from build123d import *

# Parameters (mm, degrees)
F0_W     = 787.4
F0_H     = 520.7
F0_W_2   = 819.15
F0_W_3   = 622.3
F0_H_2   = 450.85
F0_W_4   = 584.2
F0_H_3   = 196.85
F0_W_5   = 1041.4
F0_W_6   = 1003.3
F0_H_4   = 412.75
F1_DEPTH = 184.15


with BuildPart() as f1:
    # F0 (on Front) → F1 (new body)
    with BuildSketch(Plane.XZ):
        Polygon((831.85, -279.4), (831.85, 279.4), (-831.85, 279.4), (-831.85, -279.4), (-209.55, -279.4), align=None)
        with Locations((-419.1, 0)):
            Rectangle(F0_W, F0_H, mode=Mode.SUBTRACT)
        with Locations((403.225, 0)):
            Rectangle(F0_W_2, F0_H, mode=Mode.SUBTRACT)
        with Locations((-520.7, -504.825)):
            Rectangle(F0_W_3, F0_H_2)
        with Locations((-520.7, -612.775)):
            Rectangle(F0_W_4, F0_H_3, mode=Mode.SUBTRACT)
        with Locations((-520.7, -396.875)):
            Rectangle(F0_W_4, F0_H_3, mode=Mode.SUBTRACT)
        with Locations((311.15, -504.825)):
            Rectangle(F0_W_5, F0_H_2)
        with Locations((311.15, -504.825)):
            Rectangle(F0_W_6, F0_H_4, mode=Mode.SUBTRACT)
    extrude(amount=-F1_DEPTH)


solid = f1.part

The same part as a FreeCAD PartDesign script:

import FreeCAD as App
import Part
import Sketcher
Q = App.Units.Quantity


def add_polygon(sketch, points):
    """Adds a closed chain of lines whose ends are joined by coincident constraints."""
    first, n = sketch.GeometryCount, len(points)
    for a, b in zip(points, points[1:] + points[:1]):
        sketch.addGeometry(Part.LineSegment(App.Vector(*a, 0), App.Vector(*b, 0)), False)
    for i in range(n):
        sketch.addConstraint(Sketcher.Constraint("Coincident", first + i, 2, first + (i + 1) % n, 1))

doc = App.newDocument("Part")
body = doc.addObject("PartDesign::Body", "Body")

# Sketch on XZ plane
sketch1 = body.newObject("Sketcher::SketchObject", "Sketch")
sketch1.AttachmentSupport = (doc.getObject("XZ_Plane"), [""])
sketch1.MapMode = "FlatFace"
add_polygon(sketch1, [(831.85, 279.4), (-831.85, 279.4), (-831.85, -730.25), (831.85, -730.25)])  # lines 0-3
add_polygon(sketch1, [(-228.6, -711.2), (-812.8, -711.2), (-812.8, -514.35), (-228.6, -514.35)])  # lines 4-7
add_polygon(sketch1, [(-228.6, -495.3), (-812.8, -495.3), (-812.8, -298.45), (-228.6, -298.45)])  # lines 8-11
add_polygon(sketch1, [(812.8, -711.2), (-190.5, -711.2), (-190.5, -298.45), (812.8, -298.45)])  # lines 12-15
add_polygon(sketch1, [(-25.4, -260.35), (-812.8, -260.35), (-812.8, 260.35), (-25.4, 260.35)])  # lines 16-19
add_polygon(sketch1, [(812.8, -260.35), (-6.35, -260.35), (-6.35, 260.35), (812.8, 260.35)])  # lines 20-23
sketch1.addConstraint([
    Sketcher.Constraint("Horizontal", 0),
    Sketcher.Constraint("Vertical", 1),
    Sketcher.Constraint("Horizontal", 2),
    Sketcher.Constraint("Vertical", 3),
    Sketcher.Constraint("Horizontal", 4),
    Sketcher.Constraint("Vertical", 5),
    Sketcher.Constraint("Horizontal", 6),
    Sketcher.Constraint("Vertical", 7),
    Sketcher.Constraint("Horizontal", 8),
    Sketcher.Constraint("Vertical", 9),
    Sketcher.Constraint("Horizontal", 10),
    Sketcher.Constraint("Vertical", 11),
    Sketcher.Constraint("Horizontal", 12),
    Sketcher.Constraint("Vertical", 13),
    Sketcher.Constraint("Horizontal", 14),
    Sketcher.Constraint("Vertical", 15),
    Sketcher.Constraint("Horizontal", 16),
    Sketcher.Constraint("Vertical", 17),
    Sketcher.Constraint("Horizontal", 18),
    Sketcher.Constraint("Vertical", 19),
    Sketcher.Constraint("Horizontal", 20),
    Sketcher.Constraint("Vertical", 21),
    Sketcher.Constraint("Horizontal", 22),
    Sketcher.Constraint("Vertical", 23),
    Sketcher.Constraint("Symmetric", 16, 2, 22, 2, -1, 1),
    Sketcher.Constraint("Symmetric", 9, 2, 14, 2, -2),
    Sketcher.Constraint("Symmetric", 4, 2, 15, 2, -2),
    Sketcher.Constraint("Horizontal", 19, 2, 20, 2),
    Sketcher.Constraint("Horizontal", 18, 2, 21, 2),
    Sketcher.Constraint("Vertical", 7, 2, 10, 2),
    Sketcher.Constraint("Vertical", 9, 2, 16, 2),
    Sketcher.Constraint("Equal", 7, 9),
    Sketcher.Constraint("DistanceX", 4, 2, 4, 1, Q("23 in")),
    Sketcher.Constraint("DistanceX", 16, 2, 16, 1, Q("31 in")),
    Sketcher.Constraint("DistanceX", 0, 2, 0, 1, Q("65.5 in")),
    Sketcher.Constraint("DistanceX", 12, 2, 12, 1, Q("39.5 in")),
    Sketcher.Constraint("DistanceY", 17, 1, 17, 2, Q("20.5 in")),
    Sketcher.Constraint("DistanceY", -1, 1, 0, 2, Q("11 in")),
    Sketcher.Constraint("DistanceX", 4, 2, -1, 1, Q("32 in")),
    Sketcher.Constraint("DistanceY", 4, 2, -1, 1, Q("28 in")),
    Sketcher.Constraint("DistanceY", 1, 2, 9, 2, Q("17 in")),
    Sketcher.Constraint("DistanceY", 5, 2, 16, 2, Q("10 in")),
    Sketcher.Constraint("DistanceY", 9, 2, 17, 2, Q("22 in")),
    Sketcher.Constraint("DistanceX", 20, 2, 20, 1, Q("32.25 in")),
    Sketcher.Constraint("DistanceX", 0, 2, -1, 1, Q("32.75 in")),
])
pad1 = body.newObject("PartDesign::Pad", "Pad")
pad1.Profile = sketch1
pad1.Length = Q("7.25 in")
pad1.Reversed = True

doc.recompute()
